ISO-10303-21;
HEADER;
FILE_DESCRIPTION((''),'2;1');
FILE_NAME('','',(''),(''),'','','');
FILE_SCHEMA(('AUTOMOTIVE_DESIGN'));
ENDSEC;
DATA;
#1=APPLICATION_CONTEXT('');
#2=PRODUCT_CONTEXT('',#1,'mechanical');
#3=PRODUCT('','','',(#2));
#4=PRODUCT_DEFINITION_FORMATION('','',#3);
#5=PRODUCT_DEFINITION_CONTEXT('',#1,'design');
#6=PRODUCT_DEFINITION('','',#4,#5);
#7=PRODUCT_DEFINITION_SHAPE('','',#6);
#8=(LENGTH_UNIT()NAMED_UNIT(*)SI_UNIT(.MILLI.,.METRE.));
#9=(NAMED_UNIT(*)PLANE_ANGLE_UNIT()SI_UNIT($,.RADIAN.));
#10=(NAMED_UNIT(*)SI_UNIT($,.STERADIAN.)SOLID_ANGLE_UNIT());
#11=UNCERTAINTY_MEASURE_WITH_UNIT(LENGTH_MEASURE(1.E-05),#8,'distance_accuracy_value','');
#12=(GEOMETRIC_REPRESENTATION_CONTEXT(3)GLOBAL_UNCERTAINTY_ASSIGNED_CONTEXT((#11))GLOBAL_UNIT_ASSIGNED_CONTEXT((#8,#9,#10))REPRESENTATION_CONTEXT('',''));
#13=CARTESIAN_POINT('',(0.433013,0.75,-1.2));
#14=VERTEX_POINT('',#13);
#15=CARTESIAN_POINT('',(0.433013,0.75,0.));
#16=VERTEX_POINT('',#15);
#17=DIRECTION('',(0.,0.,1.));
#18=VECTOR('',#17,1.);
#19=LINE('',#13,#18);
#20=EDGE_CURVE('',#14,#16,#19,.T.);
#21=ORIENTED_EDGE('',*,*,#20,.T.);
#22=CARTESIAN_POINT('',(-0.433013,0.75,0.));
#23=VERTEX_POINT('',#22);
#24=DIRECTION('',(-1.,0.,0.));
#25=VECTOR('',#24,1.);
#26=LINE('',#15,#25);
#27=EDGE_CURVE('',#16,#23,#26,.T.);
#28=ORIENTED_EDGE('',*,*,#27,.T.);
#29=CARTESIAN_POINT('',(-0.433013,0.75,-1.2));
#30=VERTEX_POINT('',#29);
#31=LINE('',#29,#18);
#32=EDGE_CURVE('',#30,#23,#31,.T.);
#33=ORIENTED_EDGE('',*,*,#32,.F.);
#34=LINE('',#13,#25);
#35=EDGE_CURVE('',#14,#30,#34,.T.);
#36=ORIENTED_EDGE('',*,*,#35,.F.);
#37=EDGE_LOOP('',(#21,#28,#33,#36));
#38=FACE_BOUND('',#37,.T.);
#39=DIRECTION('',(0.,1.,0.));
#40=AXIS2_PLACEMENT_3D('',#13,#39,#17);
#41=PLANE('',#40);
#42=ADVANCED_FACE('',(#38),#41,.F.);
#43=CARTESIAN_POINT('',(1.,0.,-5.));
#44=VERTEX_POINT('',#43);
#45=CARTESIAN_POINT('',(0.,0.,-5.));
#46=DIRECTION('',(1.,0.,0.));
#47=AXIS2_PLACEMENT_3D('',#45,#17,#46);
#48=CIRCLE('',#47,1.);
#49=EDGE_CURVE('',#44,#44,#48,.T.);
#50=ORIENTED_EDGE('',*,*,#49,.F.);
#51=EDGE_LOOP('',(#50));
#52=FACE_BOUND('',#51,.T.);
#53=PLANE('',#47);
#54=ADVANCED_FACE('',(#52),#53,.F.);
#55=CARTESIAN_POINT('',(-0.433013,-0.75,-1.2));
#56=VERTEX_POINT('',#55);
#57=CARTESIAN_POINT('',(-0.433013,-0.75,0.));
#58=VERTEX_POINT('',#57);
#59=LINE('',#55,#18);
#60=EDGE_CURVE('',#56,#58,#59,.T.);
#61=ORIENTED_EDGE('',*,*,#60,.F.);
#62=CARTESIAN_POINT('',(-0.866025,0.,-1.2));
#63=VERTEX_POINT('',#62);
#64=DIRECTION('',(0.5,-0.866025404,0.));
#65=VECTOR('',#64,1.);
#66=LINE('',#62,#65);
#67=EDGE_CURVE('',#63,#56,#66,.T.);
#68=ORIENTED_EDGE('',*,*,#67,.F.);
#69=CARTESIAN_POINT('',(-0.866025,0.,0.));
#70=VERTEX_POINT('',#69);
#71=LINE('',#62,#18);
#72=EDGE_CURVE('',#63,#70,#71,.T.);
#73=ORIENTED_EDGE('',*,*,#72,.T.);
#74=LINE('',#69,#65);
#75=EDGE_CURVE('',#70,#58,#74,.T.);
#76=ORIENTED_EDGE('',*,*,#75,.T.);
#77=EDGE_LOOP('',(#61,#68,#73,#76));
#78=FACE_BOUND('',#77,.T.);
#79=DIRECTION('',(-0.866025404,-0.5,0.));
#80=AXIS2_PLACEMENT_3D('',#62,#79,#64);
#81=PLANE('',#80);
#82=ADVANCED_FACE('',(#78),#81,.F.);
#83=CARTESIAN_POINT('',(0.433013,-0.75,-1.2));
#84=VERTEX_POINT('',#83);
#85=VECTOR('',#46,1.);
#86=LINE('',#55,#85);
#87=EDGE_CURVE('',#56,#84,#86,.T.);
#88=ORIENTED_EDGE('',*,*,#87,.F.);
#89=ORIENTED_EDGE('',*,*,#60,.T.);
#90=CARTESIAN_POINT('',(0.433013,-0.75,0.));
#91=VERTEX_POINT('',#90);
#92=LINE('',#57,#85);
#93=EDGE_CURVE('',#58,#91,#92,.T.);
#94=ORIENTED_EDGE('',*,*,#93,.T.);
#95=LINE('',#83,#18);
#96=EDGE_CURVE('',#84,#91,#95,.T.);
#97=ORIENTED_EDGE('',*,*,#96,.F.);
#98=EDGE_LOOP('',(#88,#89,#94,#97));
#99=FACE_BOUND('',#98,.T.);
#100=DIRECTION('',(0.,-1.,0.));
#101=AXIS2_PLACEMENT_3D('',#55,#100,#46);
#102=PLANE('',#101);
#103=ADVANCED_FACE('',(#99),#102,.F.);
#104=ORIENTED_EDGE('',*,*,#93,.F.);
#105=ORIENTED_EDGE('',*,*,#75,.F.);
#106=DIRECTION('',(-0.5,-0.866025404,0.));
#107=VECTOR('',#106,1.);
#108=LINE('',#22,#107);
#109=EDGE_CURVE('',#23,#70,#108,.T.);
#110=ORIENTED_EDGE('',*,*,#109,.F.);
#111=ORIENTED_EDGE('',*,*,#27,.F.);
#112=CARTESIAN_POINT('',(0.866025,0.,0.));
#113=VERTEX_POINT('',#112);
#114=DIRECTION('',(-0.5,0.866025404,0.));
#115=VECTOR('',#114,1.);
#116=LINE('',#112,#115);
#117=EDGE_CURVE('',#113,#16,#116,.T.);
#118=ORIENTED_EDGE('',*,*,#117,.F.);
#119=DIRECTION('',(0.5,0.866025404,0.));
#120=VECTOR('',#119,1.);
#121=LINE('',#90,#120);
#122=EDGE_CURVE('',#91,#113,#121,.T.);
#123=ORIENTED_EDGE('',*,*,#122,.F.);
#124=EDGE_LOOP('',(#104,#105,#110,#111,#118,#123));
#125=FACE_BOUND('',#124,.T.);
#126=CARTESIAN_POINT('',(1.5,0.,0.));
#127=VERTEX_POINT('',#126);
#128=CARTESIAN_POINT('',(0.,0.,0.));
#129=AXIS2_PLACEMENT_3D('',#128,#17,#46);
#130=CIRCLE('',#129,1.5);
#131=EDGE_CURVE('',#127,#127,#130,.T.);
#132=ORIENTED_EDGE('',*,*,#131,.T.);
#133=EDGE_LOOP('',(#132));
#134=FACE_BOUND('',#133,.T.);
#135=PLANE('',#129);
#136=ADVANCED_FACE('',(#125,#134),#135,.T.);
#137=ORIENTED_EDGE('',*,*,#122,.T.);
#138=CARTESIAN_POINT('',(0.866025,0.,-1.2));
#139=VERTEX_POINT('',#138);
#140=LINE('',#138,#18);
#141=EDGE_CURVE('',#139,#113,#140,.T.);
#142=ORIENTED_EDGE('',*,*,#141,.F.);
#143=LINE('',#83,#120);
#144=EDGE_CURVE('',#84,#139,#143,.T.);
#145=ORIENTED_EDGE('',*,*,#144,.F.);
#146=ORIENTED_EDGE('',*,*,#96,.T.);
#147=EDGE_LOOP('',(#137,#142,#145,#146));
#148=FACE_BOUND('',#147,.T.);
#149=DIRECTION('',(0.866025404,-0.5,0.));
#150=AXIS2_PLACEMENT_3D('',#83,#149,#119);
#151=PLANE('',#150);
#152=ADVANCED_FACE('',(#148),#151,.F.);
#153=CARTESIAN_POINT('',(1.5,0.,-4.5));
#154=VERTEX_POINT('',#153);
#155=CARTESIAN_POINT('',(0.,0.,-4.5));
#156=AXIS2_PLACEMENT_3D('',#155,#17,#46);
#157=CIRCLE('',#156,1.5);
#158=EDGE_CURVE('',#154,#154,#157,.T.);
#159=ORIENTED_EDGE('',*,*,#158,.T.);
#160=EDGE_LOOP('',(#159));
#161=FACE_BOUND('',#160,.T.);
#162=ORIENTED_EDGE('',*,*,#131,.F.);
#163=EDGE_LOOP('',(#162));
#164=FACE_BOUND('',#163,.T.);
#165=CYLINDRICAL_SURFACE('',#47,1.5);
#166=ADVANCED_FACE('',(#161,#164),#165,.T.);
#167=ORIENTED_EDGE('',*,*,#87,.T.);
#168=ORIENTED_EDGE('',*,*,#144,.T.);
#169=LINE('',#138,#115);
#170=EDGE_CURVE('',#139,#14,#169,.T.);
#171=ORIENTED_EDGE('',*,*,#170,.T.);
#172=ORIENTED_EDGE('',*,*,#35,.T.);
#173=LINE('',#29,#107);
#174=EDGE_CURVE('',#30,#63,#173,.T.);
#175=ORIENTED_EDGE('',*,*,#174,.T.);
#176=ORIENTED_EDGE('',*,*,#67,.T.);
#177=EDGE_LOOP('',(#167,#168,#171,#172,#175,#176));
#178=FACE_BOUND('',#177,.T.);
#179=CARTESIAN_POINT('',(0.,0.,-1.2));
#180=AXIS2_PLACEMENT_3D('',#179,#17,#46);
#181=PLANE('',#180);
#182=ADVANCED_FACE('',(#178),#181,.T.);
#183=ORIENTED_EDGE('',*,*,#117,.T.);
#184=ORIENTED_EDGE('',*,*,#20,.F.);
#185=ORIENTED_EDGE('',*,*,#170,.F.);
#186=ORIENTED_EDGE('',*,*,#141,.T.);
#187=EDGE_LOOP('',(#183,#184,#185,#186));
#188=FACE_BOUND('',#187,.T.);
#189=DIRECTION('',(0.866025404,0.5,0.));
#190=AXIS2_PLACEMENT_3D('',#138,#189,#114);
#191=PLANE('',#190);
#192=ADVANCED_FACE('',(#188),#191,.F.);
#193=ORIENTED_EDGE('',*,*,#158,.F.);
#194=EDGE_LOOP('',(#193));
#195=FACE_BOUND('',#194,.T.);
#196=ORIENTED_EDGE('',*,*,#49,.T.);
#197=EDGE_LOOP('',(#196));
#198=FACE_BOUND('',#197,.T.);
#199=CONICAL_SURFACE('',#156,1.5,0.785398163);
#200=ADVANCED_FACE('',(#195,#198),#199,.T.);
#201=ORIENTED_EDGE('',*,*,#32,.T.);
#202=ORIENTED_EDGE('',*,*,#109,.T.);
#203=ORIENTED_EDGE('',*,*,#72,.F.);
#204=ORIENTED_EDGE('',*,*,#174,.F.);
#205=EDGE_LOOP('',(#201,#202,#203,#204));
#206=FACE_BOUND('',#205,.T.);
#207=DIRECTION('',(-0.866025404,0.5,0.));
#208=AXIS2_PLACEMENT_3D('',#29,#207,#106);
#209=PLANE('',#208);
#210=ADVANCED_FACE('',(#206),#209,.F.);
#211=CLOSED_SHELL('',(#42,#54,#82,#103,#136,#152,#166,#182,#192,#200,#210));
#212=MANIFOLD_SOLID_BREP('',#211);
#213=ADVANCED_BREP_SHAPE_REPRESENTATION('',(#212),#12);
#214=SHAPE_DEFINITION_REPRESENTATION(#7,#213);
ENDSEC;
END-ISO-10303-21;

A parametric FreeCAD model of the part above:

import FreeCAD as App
import Part
import Sketcher
Q = App.Units.Quantity


def add_polygon(sketch, points):
    """Adds a closed chain of lines whose ends are joined by coincident constraints."""
    first, n = sketch.GeometryCount, len(points)
    for a, b in zip(points, points[1:] + points[:1]):
        sketch.addGeometry(Part.LineSegment(App.Vector(*a, 0), App.Vector(*b, 0)), False)
    for i in range(n):
        sketch.addConstraint(Sketcher.Constraint("Coincident", first + i, 2, first + (i + 1) % n, 1))

doc = App.newDocument("Part")
body = doc.addObject("PartDesign::Body", "Body")

sketch1 = doc.addObject("Sketcher::SketchObject", "Sketch")
body.addObject(sketch1)
sketch1.AttachmentSupport = (doc.XY_Plane, [""])
sketch1.MapMode = "FlatFace"
sketch1.addGeometry(Part.Circle(App.Vector(0, 0, 0), App.Vector(0, 0, 1), 1.5), False)
sketch1.addConstraint([
    Sketcher.Constraint("Coincident", 0, 3, -1, 1),
    Sketcher.Constraint("Diameter", 0, 3.0),
])
pad1 = doc.addObject("PartDesign::Pad", "Pad")
body.addObject(pad1)
pad1.Profile = sketch1
pad1.Length = 5
pad1.Reversed = True

sketch2 = doc.addObject("Sketcher::SketchObject", "Sketch001")
body.addObject(sketch2)
sketch2.AttachmentSupport = (doc.XY_Plane, [""])
sketch2.MapMode = "FlatFace"
add_polygon(sketch2, [(0.9, 0), (0.4, 0.8), (-0.4, 0.8), (-0.9, 0), (-0.4, -0.8), (0.4, -0.8)])
sketch2.addConstraint([
    Sketcher.Constraint("Horizontal", 1),
    Sketcher.Constraint("Horizontal", 4),
    Sketcher.Constraint("Symmetric", 0, 2, 3, 2, -1, 1),
    Sketcher.Constraint("Symmetric", 2, 2, 5, 2, -1, 1),
    Sketcher.Constraint("PointOnObject", 2, 2, -1),
    Sketcher.Constraint("Parallel", 2, 5),
    Sketcher.Constraint("Vertical", 1, 2, 3, 2),
    Sketcher.Constraint("Angle", 0, Q("120 deg")),
    Sketcher.Constraint("DistanceY", 3, 2, 1, 2, 1.5),
    Sketcher.Constraint("DistanceX", 1, 2, 1, 1, 0.866025),
])
pocket1 = doc.addObject("PartDesign::Pocket", "Pocket")
body.addObject(pocket1)
pocket1.Profile = sketch2
pocket1.Length = 1.2

sketch3 = doc.addObject("Sketcher::SketchObject", "Sketch002")
body.addObject(sketch3)
sketch3.AttachmentSupport = (doc.YZ_Plane, [""])
sketch3.MapMode = "FlatFace"
add_polygon(sketch3, [(1, -5), (1.5, -5), (1.5, -4.5)])
sketch3.addConstraint([
    Sketcher.Constraint("Horizontal", 0),
    Sketcher.Constraint("Vertical", 1),
    Sketcher.Constraint("Equal", 0, 1),
    Sketcher.Constraint("DistanceX", 0, 1, 0, 2, 0.5),
    Sketcher.Constraint("DistanceY", 0, 2, -1, 1, 5.0),
    Sketcher.Constraint("DistanceX", -1, 1, 2, 2, 1.0),
])
groove = doc.addObject("PartDesign::Groove", "Groove")
body.addObject(groove)
groove.Profile = sketch3
groove.ReferenceAxis = (sketch3, ["V_Axis"])
groove.Angle = 360

doc.recompute()
